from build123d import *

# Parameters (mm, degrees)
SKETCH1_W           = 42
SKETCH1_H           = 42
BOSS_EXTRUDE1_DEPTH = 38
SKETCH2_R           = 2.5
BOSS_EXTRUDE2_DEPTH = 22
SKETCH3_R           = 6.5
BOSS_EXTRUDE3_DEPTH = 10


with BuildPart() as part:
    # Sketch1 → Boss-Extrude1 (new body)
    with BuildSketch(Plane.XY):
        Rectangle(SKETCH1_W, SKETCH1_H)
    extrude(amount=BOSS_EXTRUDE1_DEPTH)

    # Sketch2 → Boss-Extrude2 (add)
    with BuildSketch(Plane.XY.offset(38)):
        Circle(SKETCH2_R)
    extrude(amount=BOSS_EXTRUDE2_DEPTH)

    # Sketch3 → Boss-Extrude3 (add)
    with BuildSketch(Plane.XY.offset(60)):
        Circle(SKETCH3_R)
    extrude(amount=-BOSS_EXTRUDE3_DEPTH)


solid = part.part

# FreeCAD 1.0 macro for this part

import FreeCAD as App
import Part
import Sketcher

V = App.Vector
Q = App.Units.Quantity

doc = App.newDocument("Part")
body = doc.addObject("PartDesign::Body", "Body")

# Sketch on XY plane
sketch1 = body.newObject("Sketcher::SketchObject", "Sketch")
sketch1.AttachmentSupport = (doc.getObject("XY_Plane"), [""])
sketch1.MapMode = "FlatFace"
sketch1.addGeometry([
    Part.LineSegment(V(-21, 21, 0), V(-21, -21, 0)),
    Part.LineSegment(V(-21, -21, 0), V(21, -21, 0)),
    Part.LineSegment(V(21, -21, 0), V(21, 21, 0)),
    Part.LineSegment(V(21, 21, 0), V(-21, 21, 0)),
], False)
sketch1.addConstraint([
    Sketcher.Constraint("Coincident", 0, 2, 1, 1),
    Sketcher.Constraint("Coincident", 1, 2, 2, 1),
    Sketcher.Constraint("Coincident", 2, 2, 3, 1),
    Sketcher.Constraint("Coincident", 3, 2, 0, 1),
    Sketcher.Constraint("Vertical", 0),
    Sketcher.Constraint("Horizontal", 1),
    Sketcher.Constraint("Vertical", 2),
    Sketcher.Constraint("Horizontal", 3),
    Sketcher.Constraint("Symmetric", 0, 2, 2, 2, -1, 1),
    Sketcher.Constraint("Equal", 3, 0),
    Sketcher.Constraint("DistanceX", 1, 1, 1, 2, Q("42 mm")),
])
pad1 = body.newObject("PartDesign::Pad", "Pad")
pad1.Profile = sketch1
pad1.Length = 38

# Sketch on XY plane
sketch2 = body.newObject("Sketcher::SketchObject", "Sketch001")
sketch2.AttachmentSupport = (doc.getObject("XY_Plane"), [""])
sketch2.MapMode = "FlatFace"
sketch2.AttachmentOffset = App.Placement(V(0, 0, 38), App.Rotation())
sketch2.addGeometry(Part.Circle(V(0, 0, 0), V(0, 0, 1), 2.5), False)
sketch2.addConstraint([
    Sketcher.Constraint("Coincident", 0, 3, -1, 1),
    Sketcher.Constraint("Diameter", 0, Q("5 mm")),
])
pad2 = body.newObject("PartDesign::Pad", "Pad001")
pad2.Profile = sketch2
pad2.Length = 22

# Sketch on XY plane
sketch3 = body.newObject("Sketcher::SketchObject", "Sketch002")
sketch3.AttachmentSupport = (doc.getObject("XY_Plane"), [""])
sketch3.MapMode = "FlatFace"
sketch3.AttachmentOffset = App.Placement(V(0, 0, 60), App.Rotation())
sketch3.addGeometry(Part.Circle(V(0, 0, 0), V(0, 0, 1), 6), False)
sketch3.addConstraint([
    Sketcher.Constraint("Coincident", 0, 3, -1, 1),
    Sketcher.Constraint("Diameter", 0, Q("13 mm")),
])
pad3 = body.newObject("PartDesign::Pad", "Pad002")
pad3.Profile = sketch3
pad3.Length = 10
pad3.Reversed = True

doc.recompute()
